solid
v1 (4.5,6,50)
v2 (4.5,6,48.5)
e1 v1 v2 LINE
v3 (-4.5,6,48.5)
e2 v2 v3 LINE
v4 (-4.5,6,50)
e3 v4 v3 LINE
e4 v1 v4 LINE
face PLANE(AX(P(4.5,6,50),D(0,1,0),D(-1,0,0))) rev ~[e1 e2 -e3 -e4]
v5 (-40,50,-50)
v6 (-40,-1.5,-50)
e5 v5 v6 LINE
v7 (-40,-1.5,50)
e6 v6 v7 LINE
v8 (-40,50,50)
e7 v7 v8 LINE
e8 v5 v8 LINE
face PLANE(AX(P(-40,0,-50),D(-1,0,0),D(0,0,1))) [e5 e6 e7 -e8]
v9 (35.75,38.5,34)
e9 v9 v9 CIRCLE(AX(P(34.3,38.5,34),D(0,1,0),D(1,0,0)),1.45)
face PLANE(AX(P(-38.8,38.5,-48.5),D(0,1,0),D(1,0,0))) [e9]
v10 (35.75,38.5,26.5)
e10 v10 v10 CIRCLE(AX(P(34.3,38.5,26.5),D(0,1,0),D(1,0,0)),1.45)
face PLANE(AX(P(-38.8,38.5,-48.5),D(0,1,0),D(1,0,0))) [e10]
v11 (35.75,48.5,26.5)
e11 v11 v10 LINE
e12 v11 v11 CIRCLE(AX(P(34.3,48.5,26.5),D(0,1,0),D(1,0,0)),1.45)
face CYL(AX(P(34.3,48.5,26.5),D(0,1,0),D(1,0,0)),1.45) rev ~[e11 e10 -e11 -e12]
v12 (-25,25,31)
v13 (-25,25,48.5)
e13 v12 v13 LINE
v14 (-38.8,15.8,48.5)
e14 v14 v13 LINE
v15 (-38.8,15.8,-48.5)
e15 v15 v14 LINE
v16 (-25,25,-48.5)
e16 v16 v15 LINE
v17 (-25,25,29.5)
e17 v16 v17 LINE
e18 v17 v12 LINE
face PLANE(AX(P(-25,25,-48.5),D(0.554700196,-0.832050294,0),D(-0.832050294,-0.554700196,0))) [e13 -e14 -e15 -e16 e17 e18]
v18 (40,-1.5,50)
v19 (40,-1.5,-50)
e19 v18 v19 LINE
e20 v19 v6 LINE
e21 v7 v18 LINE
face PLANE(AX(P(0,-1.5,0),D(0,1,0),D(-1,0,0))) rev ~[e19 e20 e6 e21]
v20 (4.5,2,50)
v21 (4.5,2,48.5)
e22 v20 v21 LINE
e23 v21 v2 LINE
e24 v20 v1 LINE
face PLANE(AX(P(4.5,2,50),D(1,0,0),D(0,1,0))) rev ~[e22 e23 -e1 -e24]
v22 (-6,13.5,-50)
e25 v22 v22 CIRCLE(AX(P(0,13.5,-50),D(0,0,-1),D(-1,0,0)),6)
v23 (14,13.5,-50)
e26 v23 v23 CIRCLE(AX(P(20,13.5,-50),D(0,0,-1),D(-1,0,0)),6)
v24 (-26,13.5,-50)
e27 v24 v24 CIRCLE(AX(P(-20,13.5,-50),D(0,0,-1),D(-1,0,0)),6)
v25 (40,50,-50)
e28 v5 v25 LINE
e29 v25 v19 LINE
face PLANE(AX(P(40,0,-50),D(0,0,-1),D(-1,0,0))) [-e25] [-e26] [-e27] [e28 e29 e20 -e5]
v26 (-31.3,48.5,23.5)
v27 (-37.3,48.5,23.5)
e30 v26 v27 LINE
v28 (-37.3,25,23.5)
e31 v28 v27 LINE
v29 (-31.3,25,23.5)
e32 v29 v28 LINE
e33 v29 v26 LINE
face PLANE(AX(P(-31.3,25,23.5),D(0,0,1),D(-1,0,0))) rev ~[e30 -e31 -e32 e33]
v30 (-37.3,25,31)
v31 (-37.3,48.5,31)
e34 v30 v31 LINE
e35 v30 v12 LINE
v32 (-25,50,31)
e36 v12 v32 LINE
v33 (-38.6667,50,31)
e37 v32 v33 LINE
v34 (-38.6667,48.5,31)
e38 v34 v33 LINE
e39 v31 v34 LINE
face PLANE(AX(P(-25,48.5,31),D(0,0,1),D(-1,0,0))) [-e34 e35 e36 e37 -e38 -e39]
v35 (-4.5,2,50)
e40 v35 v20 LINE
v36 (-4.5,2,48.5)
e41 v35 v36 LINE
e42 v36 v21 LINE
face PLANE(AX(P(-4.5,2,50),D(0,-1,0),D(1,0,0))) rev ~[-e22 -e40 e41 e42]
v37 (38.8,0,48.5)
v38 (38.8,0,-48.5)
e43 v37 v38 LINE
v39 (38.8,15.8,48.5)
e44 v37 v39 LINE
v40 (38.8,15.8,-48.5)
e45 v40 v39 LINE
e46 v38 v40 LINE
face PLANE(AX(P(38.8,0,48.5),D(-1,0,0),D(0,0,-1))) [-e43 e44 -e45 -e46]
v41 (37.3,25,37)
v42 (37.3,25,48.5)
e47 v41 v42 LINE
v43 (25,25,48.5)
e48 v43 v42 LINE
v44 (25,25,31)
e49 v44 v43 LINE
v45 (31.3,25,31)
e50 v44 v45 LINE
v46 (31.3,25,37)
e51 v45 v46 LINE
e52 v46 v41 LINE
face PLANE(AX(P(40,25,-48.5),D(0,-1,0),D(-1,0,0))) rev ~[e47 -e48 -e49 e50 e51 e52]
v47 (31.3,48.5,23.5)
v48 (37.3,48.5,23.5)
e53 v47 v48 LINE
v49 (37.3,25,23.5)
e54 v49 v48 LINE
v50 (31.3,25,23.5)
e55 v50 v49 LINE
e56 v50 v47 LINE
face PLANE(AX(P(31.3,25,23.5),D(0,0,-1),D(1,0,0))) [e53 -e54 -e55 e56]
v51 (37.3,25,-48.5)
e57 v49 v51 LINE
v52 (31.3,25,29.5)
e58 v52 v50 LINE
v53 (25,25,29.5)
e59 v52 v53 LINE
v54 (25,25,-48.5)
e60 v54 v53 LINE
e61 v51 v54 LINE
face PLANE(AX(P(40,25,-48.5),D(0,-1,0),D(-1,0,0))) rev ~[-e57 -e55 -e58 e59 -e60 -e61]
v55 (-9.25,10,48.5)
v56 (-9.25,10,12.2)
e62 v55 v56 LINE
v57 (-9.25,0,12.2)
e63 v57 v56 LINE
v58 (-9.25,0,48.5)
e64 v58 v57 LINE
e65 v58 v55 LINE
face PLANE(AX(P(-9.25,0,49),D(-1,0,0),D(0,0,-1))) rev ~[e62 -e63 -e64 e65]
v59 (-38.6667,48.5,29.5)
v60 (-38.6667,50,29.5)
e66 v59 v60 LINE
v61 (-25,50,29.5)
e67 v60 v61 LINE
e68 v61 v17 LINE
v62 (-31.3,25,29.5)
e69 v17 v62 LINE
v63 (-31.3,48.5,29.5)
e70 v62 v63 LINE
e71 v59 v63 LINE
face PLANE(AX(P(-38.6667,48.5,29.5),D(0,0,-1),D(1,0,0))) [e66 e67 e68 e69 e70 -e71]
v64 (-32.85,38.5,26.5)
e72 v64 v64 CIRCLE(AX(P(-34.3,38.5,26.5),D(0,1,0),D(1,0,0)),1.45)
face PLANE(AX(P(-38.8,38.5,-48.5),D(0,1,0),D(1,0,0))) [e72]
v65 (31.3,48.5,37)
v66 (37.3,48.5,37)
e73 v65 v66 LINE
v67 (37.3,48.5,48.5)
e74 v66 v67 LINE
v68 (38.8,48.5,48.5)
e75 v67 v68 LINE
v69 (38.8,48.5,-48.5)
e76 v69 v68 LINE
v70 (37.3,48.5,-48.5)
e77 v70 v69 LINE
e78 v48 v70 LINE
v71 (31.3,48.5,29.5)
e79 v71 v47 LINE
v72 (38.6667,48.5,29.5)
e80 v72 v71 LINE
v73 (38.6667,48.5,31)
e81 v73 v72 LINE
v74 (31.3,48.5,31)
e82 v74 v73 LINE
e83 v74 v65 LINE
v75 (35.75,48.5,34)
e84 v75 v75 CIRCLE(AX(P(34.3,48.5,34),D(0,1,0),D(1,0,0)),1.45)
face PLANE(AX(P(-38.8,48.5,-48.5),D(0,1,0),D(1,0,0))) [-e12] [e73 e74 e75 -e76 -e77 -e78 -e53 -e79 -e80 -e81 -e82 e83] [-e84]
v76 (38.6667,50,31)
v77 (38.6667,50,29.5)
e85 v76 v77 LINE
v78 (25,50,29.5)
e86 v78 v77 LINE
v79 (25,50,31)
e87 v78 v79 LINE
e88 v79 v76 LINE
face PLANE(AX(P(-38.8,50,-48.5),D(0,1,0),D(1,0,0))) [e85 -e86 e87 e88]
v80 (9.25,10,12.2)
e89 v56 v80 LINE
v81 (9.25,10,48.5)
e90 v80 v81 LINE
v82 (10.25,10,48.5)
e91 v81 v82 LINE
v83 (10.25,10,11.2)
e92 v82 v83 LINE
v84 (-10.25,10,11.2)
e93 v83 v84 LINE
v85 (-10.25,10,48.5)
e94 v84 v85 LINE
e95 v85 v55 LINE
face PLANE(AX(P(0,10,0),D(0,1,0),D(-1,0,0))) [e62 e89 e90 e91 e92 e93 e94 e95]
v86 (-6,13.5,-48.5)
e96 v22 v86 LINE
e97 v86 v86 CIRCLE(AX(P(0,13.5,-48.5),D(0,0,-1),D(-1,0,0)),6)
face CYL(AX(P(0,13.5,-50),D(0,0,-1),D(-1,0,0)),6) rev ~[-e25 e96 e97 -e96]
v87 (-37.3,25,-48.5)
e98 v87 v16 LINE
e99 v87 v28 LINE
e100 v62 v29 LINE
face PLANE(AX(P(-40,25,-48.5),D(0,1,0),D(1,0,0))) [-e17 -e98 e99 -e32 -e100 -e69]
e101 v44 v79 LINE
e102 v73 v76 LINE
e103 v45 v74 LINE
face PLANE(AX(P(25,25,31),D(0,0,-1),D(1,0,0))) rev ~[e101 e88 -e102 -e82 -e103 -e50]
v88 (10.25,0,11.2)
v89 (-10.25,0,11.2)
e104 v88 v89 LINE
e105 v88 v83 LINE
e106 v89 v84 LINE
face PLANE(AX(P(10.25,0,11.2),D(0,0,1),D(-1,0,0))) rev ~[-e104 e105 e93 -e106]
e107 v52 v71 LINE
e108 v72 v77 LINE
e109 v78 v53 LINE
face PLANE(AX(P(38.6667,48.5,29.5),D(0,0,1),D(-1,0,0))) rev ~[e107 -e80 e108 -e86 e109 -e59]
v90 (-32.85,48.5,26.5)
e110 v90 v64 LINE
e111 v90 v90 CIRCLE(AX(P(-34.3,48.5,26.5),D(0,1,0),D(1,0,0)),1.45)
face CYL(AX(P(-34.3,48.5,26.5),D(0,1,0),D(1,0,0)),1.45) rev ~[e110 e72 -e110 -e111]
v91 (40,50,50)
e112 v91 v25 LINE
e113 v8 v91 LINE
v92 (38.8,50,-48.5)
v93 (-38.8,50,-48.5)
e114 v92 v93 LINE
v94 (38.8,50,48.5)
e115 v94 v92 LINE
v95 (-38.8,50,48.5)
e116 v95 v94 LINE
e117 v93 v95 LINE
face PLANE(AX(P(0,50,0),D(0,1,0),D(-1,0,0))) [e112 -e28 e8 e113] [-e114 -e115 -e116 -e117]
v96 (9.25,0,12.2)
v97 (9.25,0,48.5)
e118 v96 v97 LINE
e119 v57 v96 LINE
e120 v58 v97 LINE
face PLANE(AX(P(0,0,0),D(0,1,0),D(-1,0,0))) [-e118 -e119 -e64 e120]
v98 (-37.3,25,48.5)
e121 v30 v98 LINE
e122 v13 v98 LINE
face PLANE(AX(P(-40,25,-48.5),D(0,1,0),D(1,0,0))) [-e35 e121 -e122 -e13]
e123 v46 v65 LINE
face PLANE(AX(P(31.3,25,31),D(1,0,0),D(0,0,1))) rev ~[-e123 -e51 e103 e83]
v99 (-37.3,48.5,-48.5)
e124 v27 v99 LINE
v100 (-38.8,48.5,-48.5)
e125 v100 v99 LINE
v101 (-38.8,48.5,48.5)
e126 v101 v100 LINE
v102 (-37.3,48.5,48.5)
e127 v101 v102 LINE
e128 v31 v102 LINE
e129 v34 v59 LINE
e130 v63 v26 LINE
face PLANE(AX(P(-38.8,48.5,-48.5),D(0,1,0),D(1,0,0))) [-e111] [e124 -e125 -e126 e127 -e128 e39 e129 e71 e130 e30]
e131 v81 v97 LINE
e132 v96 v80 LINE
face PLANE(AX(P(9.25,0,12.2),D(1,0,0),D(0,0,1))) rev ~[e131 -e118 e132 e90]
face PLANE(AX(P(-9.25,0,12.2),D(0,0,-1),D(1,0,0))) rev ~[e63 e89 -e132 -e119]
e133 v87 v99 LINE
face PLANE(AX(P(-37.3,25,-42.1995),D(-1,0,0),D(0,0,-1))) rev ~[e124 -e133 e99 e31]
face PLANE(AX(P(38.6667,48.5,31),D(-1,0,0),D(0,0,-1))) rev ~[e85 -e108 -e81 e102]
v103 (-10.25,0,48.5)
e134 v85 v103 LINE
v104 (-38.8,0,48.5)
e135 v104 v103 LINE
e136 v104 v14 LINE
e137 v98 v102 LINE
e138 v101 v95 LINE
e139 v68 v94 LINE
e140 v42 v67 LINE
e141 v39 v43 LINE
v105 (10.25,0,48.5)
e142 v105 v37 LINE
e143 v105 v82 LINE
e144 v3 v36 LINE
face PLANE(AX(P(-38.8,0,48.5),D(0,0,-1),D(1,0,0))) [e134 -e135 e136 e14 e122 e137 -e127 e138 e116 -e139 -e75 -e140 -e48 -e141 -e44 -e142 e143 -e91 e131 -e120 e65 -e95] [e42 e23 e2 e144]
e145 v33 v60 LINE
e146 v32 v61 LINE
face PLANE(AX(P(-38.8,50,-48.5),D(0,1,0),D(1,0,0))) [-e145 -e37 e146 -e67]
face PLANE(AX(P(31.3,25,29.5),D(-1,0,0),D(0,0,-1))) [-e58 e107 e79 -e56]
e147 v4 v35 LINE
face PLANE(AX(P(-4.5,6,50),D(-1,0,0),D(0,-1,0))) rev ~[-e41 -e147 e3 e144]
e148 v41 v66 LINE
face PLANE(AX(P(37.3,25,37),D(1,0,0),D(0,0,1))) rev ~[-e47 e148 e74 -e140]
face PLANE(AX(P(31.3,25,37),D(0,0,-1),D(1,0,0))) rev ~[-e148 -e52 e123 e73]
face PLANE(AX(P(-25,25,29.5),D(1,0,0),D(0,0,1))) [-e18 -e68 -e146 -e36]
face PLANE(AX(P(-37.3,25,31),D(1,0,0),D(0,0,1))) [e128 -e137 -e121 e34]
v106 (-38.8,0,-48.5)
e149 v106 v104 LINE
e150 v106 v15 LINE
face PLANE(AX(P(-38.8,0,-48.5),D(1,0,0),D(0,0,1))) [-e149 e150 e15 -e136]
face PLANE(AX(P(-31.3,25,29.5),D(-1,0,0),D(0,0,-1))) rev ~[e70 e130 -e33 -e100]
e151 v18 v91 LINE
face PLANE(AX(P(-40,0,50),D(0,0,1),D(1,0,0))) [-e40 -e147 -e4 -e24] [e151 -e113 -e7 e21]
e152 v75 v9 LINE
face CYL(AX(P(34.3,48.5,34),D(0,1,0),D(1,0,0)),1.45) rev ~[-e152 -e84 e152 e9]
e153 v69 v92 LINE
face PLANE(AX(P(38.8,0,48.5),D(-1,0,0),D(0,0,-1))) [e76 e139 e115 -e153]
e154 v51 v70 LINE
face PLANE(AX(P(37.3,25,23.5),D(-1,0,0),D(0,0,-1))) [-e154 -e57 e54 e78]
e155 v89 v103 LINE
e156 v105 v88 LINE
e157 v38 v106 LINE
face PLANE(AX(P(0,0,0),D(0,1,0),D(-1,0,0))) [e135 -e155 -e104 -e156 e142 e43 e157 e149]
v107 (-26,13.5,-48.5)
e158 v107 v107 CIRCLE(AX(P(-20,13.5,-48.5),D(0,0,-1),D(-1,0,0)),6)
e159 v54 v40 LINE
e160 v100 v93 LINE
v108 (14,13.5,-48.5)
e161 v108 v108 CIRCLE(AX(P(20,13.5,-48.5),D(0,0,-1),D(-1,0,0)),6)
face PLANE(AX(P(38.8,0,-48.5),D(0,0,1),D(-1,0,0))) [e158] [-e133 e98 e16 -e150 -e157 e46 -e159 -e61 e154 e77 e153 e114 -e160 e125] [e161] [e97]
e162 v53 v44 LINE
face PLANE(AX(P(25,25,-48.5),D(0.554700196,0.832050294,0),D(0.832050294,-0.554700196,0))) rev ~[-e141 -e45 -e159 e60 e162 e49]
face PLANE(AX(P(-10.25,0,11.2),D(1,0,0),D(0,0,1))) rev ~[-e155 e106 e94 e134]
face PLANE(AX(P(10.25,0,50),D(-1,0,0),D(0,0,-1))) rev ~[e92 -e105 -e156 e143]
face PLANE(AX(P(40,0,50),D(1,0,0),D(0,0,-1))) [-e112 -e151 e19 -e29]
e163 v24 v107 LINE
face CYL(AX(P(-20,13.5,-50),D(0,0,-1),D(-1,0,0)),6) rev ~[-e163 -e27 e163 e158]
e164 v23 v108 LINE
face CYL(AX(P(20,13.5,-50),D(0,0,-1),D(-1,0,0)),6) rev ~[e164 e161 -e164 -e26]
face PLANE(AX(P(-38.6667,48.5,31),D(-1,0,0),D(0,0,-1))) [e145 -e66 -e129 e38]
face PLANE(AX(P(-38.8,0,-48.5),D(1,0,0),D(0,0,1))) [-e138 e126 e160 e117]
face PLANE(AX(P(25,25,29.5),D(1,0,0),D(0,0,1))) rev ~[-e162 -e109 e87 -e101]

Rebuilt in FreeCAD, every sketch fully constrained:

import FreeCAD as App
import Part
import Sketcher

V = App.Vector
Q = App.Units.Quantity


def add_polygon(sketch, points):
    """Adds a closed chain of lines whose ends are joined by coincident constraints."""
    first, n = sketch.GeometryCount, len(points)
    for a, b in zip(points, points[1:] + points[:1]):
        sketch.addGeometry(Part.LineSegment(App.Vector(*a, 0), App.Vector(*b, 0)), False)
    for i in range(n):
        sketch.addConstraint(Sketcher.Constraint("Coincident", first + i, 2, first + (i + 1) % n, 1))

doc = App.newDocument("Part")
body = doc.addObject("PartDesign::Body", "Body")

# Sketch on XZ plane
sketch1 = body.newObject("Sketcher::SketchObject", "Sketch")
sketch1.AttachmentSupport = (doc.getObject("XZ_Plane"), [""])
sketch1.MapMode = "FlatFace"
add_polygon(sketch1, [(-40, -50), (-40, 50), (40, 50), (40, -50)])  # lines 0-3
sketch1.addConstraint([
    Sketcher.Constraint("Vertical", 0),
    Sketcher.Constraint("Horizontal", 1),
    Sketcher.Constraint("Vertical", 2),
    Sketcher.Constraint("Horizontal", 3),
    Sketcher.Constraint("Symmetric", 0, 2, 2, 2, -1, 1),
    Sketcher.Constraint("DistanceX", 1, 1, 1, 2, Q("80 mm")),
    Sketcher.Constraint("DistanceY", 0, 1, 0, 2, Q("100 mm")),
])
pad1 = body.newObject("PartDesign::Pad", "Pad")
pad1.Profile = sketch1
pad1.Length = 1.5

# Sketch on XZ plane
sketch2 = body.newObject("Sketcher::SketchObject", "Sketch001")
sketch2.AttachmentSupport = (doc.getObject("XZ_Plane"), [""])
sketch2.MapMode = "FlatFace"
add_polygon(sketch2, [(40, -50), (-40, -50), (-40, 50), (40, 50)])  # lines 0-3
add_polygon(sketch2, [(39, 48), (-39, 48), (-39, -48), (39, -48)])  # lines 4-7
sketch2.addConstraint([
    Sketcher.Constraint("Horizontal", 0),
    Sketcher.Constraint("Vertical", 1),
    Sketcher.Constraint("Horizontal", 2),
    Sketcher.Constraint("Vertical", 3),
    Sketcher.Constraint("Horizontal", 4),
    Sketcher.Constraint("Vertical", 5),
    Sketcher.Constraint("Horizontal", 6),
    Sketcher.Constraint("Vertical", 7),
    Sketcher.Constraint("Symmetric", 0, 2, 2, 2, -1, 1),
    Sketcher.Constraint("Symmetric", 4, 2, 6, 2, -1, 1),
    Sketcher.Constraint("DistanceY", 4, 2, 1, 2, Q("1.5 mm")),
    Sketcher.Constraint("DistanceX", 0, 2, 0, 1, Q("80 mm")),
    Sketcher.Constraint("DistanceY", 1, 1, 1, 2, Q("100 mm")),
    Sketcher.Constraint("DistanceX", 4, 2, 4, 1, Q("77.6 mm")),
])
pad2 = body.newObject("PartDesign::Pad", "Pad001")
pad2.Profile = sketch2
pad2.Length = 50
pad2.Reversed = True

# Sketch on XZ plane
sketch3 = body.newObject("Sketcher::SketchObject", "Sketch002")
sketch3.AttachmentSupport = (doc.getObject("XZ_Plane"), [""])
sketch3.MapMode = "FlatFace"
add_polygon(sketch3, [(-10, 11), (-10, 50), (10, 50), (10, 11)])  # lines 0-3
add_polygon(sketch3, [(9, 12), (9, 49), (-9, 49), (-9, 12)])  # lines 4-7
sketch3.addConstraint([
    Sketcher.Constraint("Vertical", 0),
    Sketcher.Constraint("Horizontal", 1),
    Sketcher.Constraint("Vertical", 2),
    Sketcher.Constraint("Horizontal", 3),
    Sketcher.Constraint("Vertical", 4),
    Sketcher.Constraint("Horizontal", 5),
    Sketcher.Constraint("Vertical", 6),
    Sketcher.Constraint("Horizontal", 7),
    Sketcher.Constraint("DistanceX", 5, 2, 5, 1, Q("18.5 mm")),
    Sketcher.Constraint("DistanceY", 4, 1, 4, 2, Q("36.8 mm")),
    Sketcher.Constraint("DistanceX", 4, 2, 1, 2, Q("1 mm")),
    Sketcher.Constraint("DistanceY", 4, 2, 1, 2, Q("1 mm")),
    Sketcher.Constraint("DistanceX", 0, 2, 5, 2, Q("1 mm")),
    Sketcher.Constraint("DistanceY", 3, 2, 6, 2, Q("1 mm")),
    Sketcher.Constraint("DistanceY", -1, 1, 0, 2, Q("50 mm")),
    Sketcher.Constraint("DistanceX", 0, 2, -1, 1, Q("10.25 mm")),
])
pad3 = body.newObject("PartDesign::Pad", "Pad002")
pad3.Profile = sketch3
pad3.Length = 10
pad3.Reversed = True

# Sketch on XY plane
sketch4 = body.newObject("Sketcher::SketchObject", "Sketch003")
sketch4.AttachmentSupport = (doc.getObject("XY_Plane"), [""])
sketch4.MapMode = "FlatFace"
sketch4.AttachmentOffset = App.Placement(V(0, 0, -50), App.Rotation())
sketch4.addGeometry([
    Part.Circle(V(20, 14, 0), V(0, 0, 1), 6),
    Part.Circle(V(0, 14, 0), V(0, 0, 1), 6),
    Part.Circle(V(-20, 14, 0), V(0, 0, 1), 6),
], False)
sketch4.addConstraint([
    Sketcher.Constraint("Equal", 0, 1),
    Sketcher.Constraint("Equal", 1, 2),
    Sketcher.Constraint("Symmetric", 0, 3, 2, 3, -2),
    Sketcher.Constraint("PointOnObject", 1, 3, -2),
    Sketcher.Constraint("Horizontal", 0, 3, 1, 3),
    Sketcher.Constraint("Diameter", 0, Q("12 mm")),
    Sketcher.Constraint("DistanceX", -1, 1, 0, 3, Q("20 mm")),
    Sketcher.Constraint("DistanceY", -1, 1, 0, 3, Q("13.5 mm")),
])
pocket1 = body.newObject("PartDesign::Pocket", "Pocket")
pocket1.Profile = sketch4
pocket1.Length = 1.5
pocket1.Reversed = True

# Sketch on XY plane
sketch5 = body.newObject("Sketcher::SketchObject", "Sketch004")
sketch5.AttachmentSupport = (doc.getObject("XY_Plane"), [""])
sketch5.MapMode = "FlatFace"
sketch5.AttachmentOffset = App.Placement(V(0, 0, -48.5), App.Rotation())
add_polygon(sketch5, [(-25, 25), (-40, 25), (-40, 15)])  # lines 0-2
add_polygon(sketch5, [(40, 15), (40, 25), (25, 25)])  # lines 3-5
sketch5.addConstraint([
    Sketcher.Constraint("Horizontal", 0),
    Sketcher.Constraint("Vertical", 1),
    Sketcher.Constraint("Vertical", 3),
    Sketcher.Constraint("Horizontal", 4),
    Sketcher.Constraint("Symmetric", 0, 2, 3, 2, -2),
    Sketcher.Constraint("Horizontal", 1, 2, 5, 2),
    Sketcher.Constraint("Equal", 0, 4),
    Sketcher.Constraint("DistanceX", 0, 2, 0, 1, Q("15 mm")),
    Sketcher.Constraint("DistanceY", 1, 2, 1, 1, Q("10 mm")),
    Sketcher.Constraint("DistanceY", -1, 1, 0, 2, Q("25 mm")),
    Sketcher.Constraint("DistanceX", 2, 2, -1, 1, Q("25 mm")),
])
pad4 = body.newObject("PartDesign::Pad", "Pad003")
pad4.Profile = sketch5
pad4.Type = "UpToFirst"

# Sketch on XY plane
sketch6 = body.newObject("Sketcher::SketchObject", "Sketch005")
sketch6.AttachmentSupport = (doc.getObject("XY_Plane"), [""])
sketch6.MapMode = "FlatFace"
sketch6.AttachmentOffset = App.Placement(V(0, 0, 50), App.Rotation())
add_polygon(sketch6, [(-4.5, 6), (-4.5, 2), (4.5, 2), (4.5, 6)])  # lines 0-3
sketch6.addConstraint([
    Sketcher.Constraint("Vertical", 0),
    Sketcher.Constraint("Horizontal", 1),
    Sketcher.Constraint("Vertical", 2),
    Sketcher.Constraint("Horizontal", 3),
    Sketcher.Constraint("DistanceX", 1, 1, 1, 2, Q("9 mm")),
    Sketcher.Constraint("DistanceY", 0, 2, 0, 1, Q("4 mm")),
    Sketcher.Constraint("DistanceY", -1, 1, 0, 2, Q("2 mm")),
    Sketcher.Constraint("DistanceX", 0, 2, -1, 1, Q("4.5 mm")),
])
pocket2 = body.newObject("PartDesign::Pocket", "Pocket001")
pocket2.Profile = sketch6
pocket2.Type = "UpToFirst"

# Sketch on XZ plane
sketch7 = body.newObject("Sketcher::SketchObject", "Sketch006")
sketch7.AttachmentSupport = (doc.getObject("XZ_Plane"), [""])
sketch7.MapMode = "FlatFace"
sketch7.AttachmentOffset = App.Placement(V(0, 0, -25), App.Rotation())
add_polygon(sketch7, [(-38.8, 48.5), (-37.3, 48.5), (-37.3, 31), (-25, 31), (-25, 29.5), (-31.3, 29.5), (-31.3, 23.5), (-37.3, 23.5), (-37.3, -48.5), (-38.8, -48.5)])  # lines 0-9
add_polygon(sketch7, [(38.8, -48.5), (37.3, -48.5), (37.3, 23.5), (31.3, 23.5), (31.3, 29.5), (25, 29.5), (25, 31), (31.3, 31), (31.3, 37), (37.3, 37), (37.3, 48.5), (38.8, 48.5)])  # lines 10-21
sketch7.addConstraint([
    Sketcher.Constraint("Horizontal", 0),
    Sketcher.Constraint("Vertical", 1),
    Sketcher.Constraint("Horizontal", 2),
    Sketcher.Constraint("Vertical", 3),
    Sketcher.Constraint("Horizontal", 4),
    Sketcher.Constraint("Vertical", 5),
    Sketcher.Constraint("Horizontal", 6),
    Sketcher.Constraint("Vertical", 7),
    Sketcher.Constraint("Horizontal", 8),
    Sketcher.Constraint("Vertical", 9),
    Sketcher.Constraint("Horizontal", 10),
    Sketcher.Constraint("Vertical", 11),
    Sketcher.Constraint("Horizontal", 12),
    Sketcher.Constraint("Vertical", 13),
    Sketcher.Constraint("Horizontal", 14),
    Sketcher.Constraint("Vertical", 15),
    Sketcher.Constraint("Horizontal", 16),
    Sketcher.Constraint("Vertical", 17),
    Sketcher.Constraint("Horizontal", 18),
    Sketcher.Constraint("Vertical", 19),
    Sketcher.Constraint("Horizontal", 20),
    Sketcher.Constraint("Vertical", 21),
    Sketcher.Constraint("Symmetric", 0, 2, 10, 2, -1, 1),
    Sketcher.Constraint("Symmetric", 7, 2, 19, 2, -1, 1),
    Sketcher.Constraint("Symmetric", 7, 2, 10, 2, -2),
    Sketcher.Constraint("Symmetric", 5, 2, 12, 2, -2),
    Sketcher.Constraint("Symmetric", 3, 2, 14, 2, -2),
    Sketcher.Constraint("Horizontal", 2, 2, 15, 2),
    Sketcher.Constraint("Vertical", 13, 2, 16, 2),
    Sketcher.Constraint("Equal", 8, 10),
    Sketcher.Constraint("Equal", 20, 3),
    Sketcher.Constraint("Equal", 18, 5),
    Sketcher.Constraint("Equal", 13, 17),
    Sketcher.Constraint("DistanceX", 6, 2, 6, 1, Q("6 mm")),
    Sketcher.Constraint("DistanceX", 0, 1, 0, 2, Q("1.5 mm")),
    Sketcher.Constraint("DistanceY", 1, 2, 1, 1, Q("17.5 mm")),
    Sketcher.Constraint("DistanceY", 7, 2, 4, 2, Q("78 mm")),
    Sketcher.Constraint("DistanceX", 2, 1, 2, 2, Q("12.3 mm")),
    Sketcher.Constraint("DistanceX", 2, 2, -1, 1, Q("25 mm")),
])
pad5 = body.newObject("PartDesign::Pad", "Pad004")
pad5.Profile = sketch7
pad5.Length = 23.5
pad5.Reversed = True

# Sketch on XZ plane
sketch8 = body.newObject("Sketcher::SketchObject", "Sketch007")
sketch8.AttachmentSupport = (doc.getObject("XZ_Plane"), [""])
sketch8.MapMode = "FlatFace"
sketch8.AttachmentOffset = App.Placement(V(0, 0, -48.5), App.Rotation())
sketch8.addGeometry([
    Part.Circle(V(34.3, 34, 0), V(0, 0, 1), 1.4),
    Part.Circle(V(34.3, 26.5, 0), V(0, 0, 1), 1.4),
    Part.Circle(V(-34.3, 26.5, 0), V(0, 0, 1), 1.4),
], False)
sketch8.addConstraint([
    Sketcher.Constraint("Equal", 0, 1),
    Sketcher.Constraint("Equal", 1, 2),
    Sketcher.Constraint("Symmetric", 1, 3, 2, 3, -2),
    Sketcher.Constraint("Vertical", 0, 3, 1, 3),
    Sketcher.Constraint("Diameter", 0, Q("2.9 mm")),
    Sketcher.Constraint("DistanceY", -1, 1, 0, 3, Q("34 mm")),
    Sketcher.Constraint("DistanceX", -1, 1, 0, 3, Q("34.3 mm")),
    Sketcher.Constraint("DistanceY", -1, 1, 1, 3, Q("26.5 mm")),
])
pocket3 = body.newObject("PartDesign::Pocket", "Pocket002")
pocket3.Profile = sketch8
pocket3.Length = 10
pocket3.Reversed = True

# Sketch on XZ plane
sketch9 = body.newObject("Sketcher::SketchObject", "Sketch008")
sketch9.AttachmentSupport = (doc.getObject("XZ_Plane"), [""])
sketch9.MapMode = "FlatFace"
sketch9.AttachmentOffset = App.Placement(V(0, 0, -48.5), App.Rotation())
add_polygon(sketch9, [(-38.7, 31), (-25, 31), (-25, 29.5), (-38.7, 29.5)])  # lines 0-3
add_polygon(sketch9, [(38.7, 29.5), (25, 29.5), (25, 31), (38.7, 31)])  # lines 4-7
sketch9.addConstraint([
    Sketcher.Constraint("Horizontal", 0),
    Sketcher.Constraint("Vertical", 1),
    Sketcher.Constraint("Horizontal", 2),
    Sketcher.Constraint("Vertical", 3),
    Sketcher.Constraint("Horizontal", 4),
    Sketcher.Constraint("Vertical", 5),
    Sketcher.Constraint("Horizontal", 6),
    Sketcher.Constraint("Vertical", 7),
    Sketcher.Constraint("Symmetric", 1, 2, 4, 2, -2),
    Sketcher.Constraint("Symmetric", 3, 2, 6, 2, -2),
    Sketcher.Constraint("DistanceY", 1, 2, 1, 1, Q("1.5 mm")),
    Sketcher.Constraint("DistanceX", 0, 2, -1, 1, Q("25 mm")),
    Sketcher.Constraint("DistanceY", -1, 1, 0, 2, Q("31 mm")),
    Sketcher.Constraint("DistanceX", 0, 1, 0, 2, Q("13.6667 mm")),
])
pad6 = body.newObject("PartDesign::Pad", "Pad005")
pad6.Profile = sketch9
pad6.Length = 1.5
pad6.Reversed = True

doc.recompute()
